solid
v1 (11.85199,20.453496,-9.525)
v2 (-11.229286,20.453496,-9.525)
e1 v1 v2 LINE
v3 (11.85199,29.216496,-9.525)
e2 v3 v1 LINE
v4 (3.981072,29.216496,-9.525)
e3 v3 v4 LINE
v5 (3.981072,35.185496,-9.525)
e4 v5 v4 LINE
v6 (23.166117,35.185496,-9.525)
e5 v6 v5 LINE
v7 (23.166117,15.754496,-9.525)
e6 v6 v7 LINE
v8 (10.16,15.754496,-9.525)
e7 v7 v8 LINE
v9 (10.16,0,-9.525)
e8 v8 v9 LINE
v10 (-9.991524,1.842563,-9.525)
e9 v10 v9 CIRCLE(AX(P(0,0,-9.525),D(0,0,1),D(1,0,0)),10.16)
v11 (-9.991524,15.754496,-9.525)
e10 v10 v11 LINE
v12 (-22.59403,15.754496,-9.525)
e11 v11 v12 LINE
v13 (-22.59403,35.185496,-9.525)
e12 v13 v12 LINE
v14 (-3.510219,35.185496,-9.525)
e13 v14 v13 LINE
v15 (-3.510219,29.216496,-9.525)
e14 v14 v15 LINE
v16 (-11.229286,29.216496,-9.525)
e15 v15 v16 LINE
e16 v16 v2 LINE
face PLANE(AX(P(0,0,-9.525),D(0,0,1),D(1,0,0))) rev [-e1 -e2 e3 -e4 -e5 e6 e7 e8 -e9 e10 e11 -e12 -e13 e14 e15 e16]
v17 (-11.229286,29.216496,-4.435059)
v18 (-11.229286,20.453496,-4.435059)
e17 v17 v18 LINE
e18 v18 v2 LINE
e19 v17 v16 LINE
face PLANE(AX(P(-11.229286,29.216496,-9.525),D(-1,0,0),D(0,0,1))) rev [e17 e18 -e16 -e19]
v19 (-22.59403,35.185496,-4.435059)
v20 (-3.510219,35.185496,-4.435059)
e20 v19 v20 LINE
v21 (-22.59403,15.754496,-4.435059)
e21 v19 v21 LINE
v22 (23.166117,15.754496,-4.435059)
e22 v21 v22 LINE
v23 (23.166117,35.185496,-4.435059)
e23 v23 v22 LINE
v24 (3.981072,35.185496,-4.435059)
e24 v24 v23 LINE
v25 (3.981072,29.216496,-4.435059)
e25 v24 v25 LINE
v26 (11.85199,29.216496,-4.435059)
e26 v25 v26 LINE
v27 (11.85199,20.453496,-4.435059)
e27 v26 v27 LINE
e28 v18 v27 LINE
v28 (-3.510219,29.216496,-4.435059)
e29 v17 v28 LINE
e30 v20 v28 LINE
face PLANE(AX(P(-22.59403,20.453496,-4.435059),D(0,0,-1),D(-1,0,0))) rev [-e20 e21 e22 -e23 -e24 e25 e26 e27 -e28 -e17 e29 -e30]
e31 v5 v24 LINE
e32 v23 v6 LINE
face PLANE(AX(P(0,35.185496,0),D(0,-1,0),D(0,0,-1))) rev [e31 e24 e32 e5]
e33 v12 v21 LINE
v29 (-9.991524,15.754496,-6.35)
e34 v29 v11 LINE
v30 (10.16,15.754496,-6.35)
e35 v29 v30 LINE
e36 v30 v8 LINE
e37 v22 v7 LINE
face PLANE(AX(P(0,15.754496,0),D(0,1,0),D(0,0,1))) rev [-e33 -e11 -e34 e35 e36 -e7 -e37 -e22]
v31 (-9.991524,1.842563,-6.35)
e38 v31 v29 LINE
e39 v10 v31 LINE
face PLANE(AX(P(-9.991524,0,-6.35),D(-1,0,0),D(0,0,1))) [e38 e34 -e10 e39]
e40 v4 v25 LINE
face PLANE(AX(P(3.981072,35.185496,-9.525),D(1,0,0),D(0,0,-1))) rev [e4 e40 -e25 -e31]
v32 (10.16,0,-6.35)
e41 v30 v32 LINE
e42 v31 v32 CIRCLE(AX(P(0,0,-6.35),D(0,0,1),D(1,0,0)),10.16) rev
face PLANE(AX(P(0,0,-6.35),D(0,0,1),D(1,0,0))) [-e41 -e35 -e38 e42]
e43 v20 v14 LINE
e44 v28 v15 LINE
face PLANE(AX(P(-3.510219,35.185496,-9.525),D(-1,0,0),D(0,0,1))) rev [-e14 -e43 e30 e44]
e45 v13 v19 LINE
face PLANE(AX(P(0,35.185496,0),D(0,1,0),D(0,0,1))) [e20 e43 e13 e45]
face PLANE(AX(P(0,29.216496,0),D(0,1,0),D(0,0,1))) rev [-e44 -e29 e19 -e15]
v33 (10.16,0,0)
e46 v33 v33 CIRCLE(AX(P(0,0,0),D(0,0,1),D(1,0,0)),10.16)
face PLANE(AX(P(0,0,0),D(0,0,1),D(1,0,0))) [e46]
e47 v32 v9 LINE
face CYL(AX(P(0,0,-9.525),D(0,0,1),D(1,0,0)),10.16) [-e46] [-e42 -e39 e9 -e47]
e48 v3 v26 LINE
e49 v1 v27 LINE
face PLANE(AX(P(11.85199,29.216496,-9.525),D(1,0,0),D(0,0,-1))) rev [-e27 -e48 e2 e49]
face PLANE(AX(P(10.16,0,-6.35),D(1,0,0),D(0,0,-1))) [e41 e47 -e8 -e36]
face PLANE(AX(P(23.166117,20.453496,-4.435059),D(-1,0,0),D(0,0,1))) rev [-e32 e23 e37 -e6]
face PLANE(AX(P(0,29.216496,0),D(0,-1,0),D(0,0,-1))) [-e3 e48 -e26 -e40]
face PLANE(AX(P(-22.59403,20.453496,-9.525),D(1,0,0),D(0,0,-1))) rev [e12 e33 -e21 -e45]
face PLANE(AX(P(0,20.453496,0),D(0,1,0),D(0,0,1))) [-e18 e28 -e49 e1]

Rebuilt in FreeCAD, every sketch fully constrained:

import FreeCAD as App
import Part
import Sketcher
Q = App.Units.Quantity

doc = App.newDocument("Part")
body = doc.addObject("PartDesign::Body", "Body")

sketch1 = body.newObject("Sketcher::SketchObject", "Sketch")
sketch1.AttachmentSupport = (doc.getObject("XY_Plane"), [""])
sketch1.MapMode = "FlatFace"
sketch1.addGeometry(Part.Circle(App.Vector(0, 0, 0), App.Vector(0, 0, 1), 10), False)
sketch1.addConstraint(Sketcher.Constraint("Coincident", 0, 3, -1, 1))
sketch1.addConstraint(Sketcher.Constraint("Diameter", 0, Q("0.8 in")))
pad1 = body.newObject("PartDesign::Pad", "Pad")
pad1.Profile = sketch1
pad1.Length = Q("0.375 in")
pad1.Reversed = True

sketch2 = body.newObject("Sketcher::SketchObject", "Sketch001")
sketch2.AttachmentSupport = (doc.getObject("XY_Plane"), [""])
sketch2.MapMode = "FlatFace"
sketch2.AttachmentOffset = App.Placement(App.Vector(0, 0, -0.375 * 25.4), App.Rotation())
sketch2.addGeometry(Part.LineSegment(App.Vector(10, 16, 0), App.Vector(10, 0, 0)), False)
sketch2.addGeometry(Part.LineSegment(App.Vector(10, 0, 0), App.Vector(-10, 0, 0)), False)
sketch2.addGeometry(Part.LineSegment(App.Vector(-10, 0, 0), App.Vector(-10, 16, 0)), False)
sketch2.addGeometry(Part.LineSegment(App.Vector(-10, 16, 0), App.Vector(10, 16, 0)), False)
sketch2.addConstraint(Sketcher.Constraint("Coincident", 0, 2, 1, 1))
sketch2.addConstraint(Sketcher.Constraint("Coincident", 1, 2, 2, 1))
sketch2.addConstraint(Sketcher.Constraint("Coincident", 2, 2, 3, 1))
sketch2.addConstraint(Sketcher.Constraint("Coincident", 3, 2, 0, 1))
sketch2.addConstraint(Sketcher.Constraint("Vertical", 0))
sketch2.addConstraint(Sketcher.Constraint("Horizontal", 1))
sketch2.addConstraint(Sketcher.Constraint("Vertical", 2))
sketch2.addConstraint(Sketcher.Constraint("Horizontal", 3))
sketch2.addConstraint(Sketcher.Constraint("PointOnObject", 0, 2, -1))
sketch2.addConstraint(Sketcher.Constraint("DistanceX", -1, 1, 0, 2, Q("0.4 in")))
sketch2.addConstraint(Sketcher.Constraint("DistanceX", 1, 2, 1, 1, Q("20.151524 mm")))
sketch2.addConstraint(Sketcher.Constraint("DistanceY", 0, 2, 0, 1, Q("15.754496 mm")))
pad2 = body.newObject("PartDesign::Pad", "Pad001")
pad2.Profile = sketch2
pad2.Length = Q("0.125 in")

sketch3 = body.newObject("Sketcher::SketchObject", "Sketch002")
sketch3.AttachmentSupport = (doc.getObject("XZ_Plane"), [""])
sketch3.MapMode = "FlatFace"
sketch3.AttachmentOffset = App.Placement(App.Vector(0, 0, -15.754496), App.Rotation())
sketch3.addGeometry(Part.LineSegment(App.Vector(-23, -10, 0), App.Vector(-23, -4, 0)), False)
sketch3.addGeometry(Part.LineSegment(App.Vector(-23, -4, 0), App.Vector(23, -4, 0)), False)
sketch3.addGeometry(Part.LineSegment(App.Vector(23, -4, 0), App.Vector(23, -10, 0)), False)
sketch3.addGeometry(Part.LineSegment(App.Vector(23, -10, 0), App.Vector(-23, -10, 0)), False)
sketch3.addConstraint(Sketcher.Constraint("Coincident", 0, 2, 1, 1))
sketch3.addConstraint(Sketcher.Constraint("Coincident", 1, 2, 2, 1))
sketch3.addConstraint(Sketcher.Constraint("Coincident", 2, 2, 3, 1))
sketch3.addConstraint(Sketcher.Constraint("Coincident", 3, 2, 0, 1))
sketch3.addConstraint(Sketcher.Constraint("Vertical", 0))
sketch3.addConstraint(Sketcher.Constraint("Horizontal", 1))
sketch3.addConstraint(Sketcher.Constraint("Vertical", 2))
sketch3.addConstraint(Sketcher.Constraint("Horizontal", 3))
sketch3.addConstraint(Sketcher.Constraint("DistanceY", 2, 2, -1, 1, Q("0.375 in")))
sketch3.addConstraint(Sketcher.Constraint("DistanceY", 0, 1, 0, 2, Q("5.089941 mm")))
sketch3.addConstraint(Sketcher.Constraint("DistanceX", 1, 1, 1, 2, Q("45.760147 mm")))
sketch3.addConstraint(Sketcher.Constraint("DistanceX", 0, 2, -1, 1, Q("22.59403 mm")))
pad3 = body.newObject("PartDesign::Pad", "Pad002")
pad3.Profile = sketch3
pad3.Length = Q("0.185 in")
pad3.Reversed = True

sketch4 = body.newObject("Sketcher::SketchObject", "Sketch003")
sketch4.AttachmentSupport = (doc.getObject("XZ_Plane"), [""])
sketch4.MapMode = "FlatFace"
sketch4.AttachmentOffset = App.Placement(App.Vector(0, 0, -20.453496), App.Rotation())
sketch4.addGeometry(Part.LineSegment(App.Vector(-23, -10, 0), App.Vector(-23, -4, 0)), False)
sketch4.addGeometry(Part.LineSegment(App.Vector(-23, -4, 0), App.Vector(-11, -4, 0)), False)
sketch4.addGeometry(Part.LineSegment(App.Vector(-11, -4, 0), App.Vector(-11, -10, 0)), False)
sketch4.addGeometry(Part.LineSegment(App.Vector(-11, -10, 0), App.Vector(-23, -10, 0)), False)
sketch4.addGeometry(Part.LineSegment(App.Vector(12, -10, 0), App.Vector(12, -4, 0)), False)
sketch4.addGeometry(Part.LineSegment(App.Vector(12, -4, 0), App.Vector(23, -4, 0)), False)
sketch4.addGeometry(Part.LineSegment(App.Vector(23, -4, 0), App.Vector(23, -10, 0)), False)
sketch4.addGeometry(Part.LineSegment(App.Vector(23, -10, 0), App.Vector(12, -10, 0)), False)
sketch4.addConstraint(Sketcher.Constraint("Coincident", 0, 2, 1, 1))
sketch4.addConstraint(Sketcher.Constraint("Coincident", 1, 2, 2, 1))
sketch4.addConstraint(Sketcher.Constraint("Coincident", 2, 2, 3, 1))
sketch4.addConstraint(Sketcher.Constraint("Coincident", 3, 2, 0, 1))
sketch4.addConstraint(Sketcher.Constraint("Coincident", 4, 2, 5, 1))
sketch4.addConstraint(Sketcher.Constraint("Coincident", 5, 2, 6, 1))
sketch4.addConstraint(Sketcher.Constraint("Coincident", 6, 2, 7, 1))
sketch4.addConstraint(Sketcher.Constraint("Coincident", 7, 2, 4, 1))
sketch4.addConstraint(Sketcher.Constraint("Vertical", 0))
sketch4.addConstraint(Sketcher.Constraint("Horizontal", 1))
sketch4.addConstraint(Sketcher.Constraint("Vertical", 2))
sketch4.addConstraint(Sketcher.Constraint("Horizontal", 3))
sketch4.addConstraint(Sketcher.Constraint("Vertical", 4))
sketch4.addConstraint(Sketcher.Constraint("Horizontal", 5))
sketch4.addConstraint(Sketcher.Constraint("Vertical", 6))
sketch4.addConstraint(Sketcher.Constraint("Horizontal", 7))
sketch4.addConstraint(Sketcher.Constraint("Horizontal", 1, 2, 4, 2))
sketch4.addConstraint(Sketcher.Constraint("Horizontal", 3, 2, 6, 2))
sketch4.addConstraint(Sketcher.Constraint("DistanceY", 2, 2, -1, 1, Q("0.375 in")))
sketch4.addConstraint(Sketcher.Constraint("DistanceY", 0, 1, 0, 2, Q("5.089941 mm")))
sketch4.addConstraint(Sketcher.Constraint("DistanceX", 1, 1, 1, 2, Q("11.364744 mm")))
sketch4.addConstraint(Sketcher.Constraint("DistanceX", 5, 1, 5, 2, Q("11.314127 mm")))
sketch4.addConstraint(Sketcher.Constraint("DistanceX", 0, 2, -1, 1, Q("22.59403 mm")))
sketch4.addConstraint(Sketcher.Constraint("DistanceX", -1, 1, 4, 2, Q("11.85199 mm")))
pad4 = body.newObject("PartDesign::Pad", "Pad003")
pad4.Profile = sketch4
pad4.Length = Q("0.345 in")
pad4.Reversed = True

sketch5 = body.newObject("Sketcher::SketchObject", "Sketch004")
sketch5.AttachmentSupport = (doc.getObject("XZ_Plane"), [""])
sketch5.MapMode = "FlatFace"
sketch5.AttachmentOffset = App.Placement(App.Vector(0, 0, -29.216496), App.Rotation())
sketch5.addGeometry(Part.LineSegment(App.Vector(-23, -10, 0), App.Vector(-23, -4, 0)), False)
sketch5.addGeometry(Part.LineSegment(App.Vector(-23, -4, 0), App.Vector(-4, -4, 0)), False)
sketch5.addGeometry(Part.LineSegment(App.Vector(-4, -4, 0), App.Vector(-4, -10, 0)), False)
sketch5.addGeometry(Part.LineSegment(App.Vector(-4, -10, 0), App.Vector(-23, -10, 0)), False)
sketch5.addGeometry(Part.LineSegment(App.Vector(4, -10, 0), App.Vector(4, -4, 0)), False)
sketch5.addGeometry(Part.LineSegment(App.Vector(4, -4, 0), App.Vector(23, -4, 0)), False)
sketch5.addGeometry(Part.LineSegment(App.Vector(23, -4, 0), App.Vector(23, -10, 0)), False)
sketch5.addGeometry(Part.LineSegment(App.Vector(23, -10, 0), App.Vector(4, -10, 0)), False)
sketch5.addConstraint(Sketcher.Constraint("Coincident", 0, 2, 1, 1))
sketch5.addConstraint(Sketcher.Constraint("Coincident", 1, 2, 2, 1))
sketch5.addConstraint(Sketcher.Constraint("Coincident", 2, 2, 3, 1))
sketch5.addConstraint(Sketcher.Constraint("Coincident", 3, 2, 0, 1))
sketch5.addConstraint(Sketcher.Constraint("Coincident", 4, 2, 5, 1))
sketch5.addConstraint(Sketcher.Constraint("Coincident", 5, 2, 6, 1))
sketch5.addConstraint(Sketcher.Constraint("Coincident", 6, 2, 7, 1))
sketch5.addConstraint(Sketcher.Constraint("Coincident", 7, 2, 4, 1))
sketch5.addConstraint(Sketcher.Constraint("Vertical", 0))
sketch5.addConstraint(Sketcher.Constraint("Horizontal", 1))
sketch5.addConstraint(Sketcher.Constraint("Vertical", 2))
sketch5.addConstraint(Sketcher.Constraint("Horizontal", 3))
sketch5.addConstraint(Sketcher.Constraint("Vertical", 4))
sketch5.addConstraint(Sketcher.Constraint("Horizontal", 5))
sketch5.addConstraint(Sketcher.Constraint("Vertical", 6))
sketch5.addConstraint(Sketcher.Constraint("Horizontal", 7))
sketch5.addConstraint(Sketcher.Constraint("Horizontal", 1, 2, 4, 2))
sketch5.addConstraint(Sketcher.Constraint("Horizontal", 3, 2, 6, 2))
sketch5.addConstraint(Sketcher.Constraint("DistanceY", 2, 2, -1, 1, Q("0.375 in")))
sketch5.addConstraint(Sketcher.Constraint("DistanceX", 1, 1, 1, 2, Q("19.083811 mm")))
sketch5.addConstraint(Sketcher.Constraint("DistanceY", 0, 1, 0, 2, Q("5.089941 mm")))
sketch5.addConstraint(Sketcher.Constraint("DistanceX", 5, 1, 5, 2, Q("19.185045 mm")))
sketch5.addConstraint(Sketcher.Constraint("DistanceX", 0, 2, -1, 1, Q("22.59403 mm")))
sketch5.addConstraint(Sketcher.Constraint("DistanceX", 1, 2, 4, 2, Q("7.491291 mm")))
pad5 = body.newObject("PartDesign::Pad", "Pad004")
pad5.Profile = sketch5
pad5.Length = Q("0.235 in")
pad5.Reversed = True

doc.recompute()
